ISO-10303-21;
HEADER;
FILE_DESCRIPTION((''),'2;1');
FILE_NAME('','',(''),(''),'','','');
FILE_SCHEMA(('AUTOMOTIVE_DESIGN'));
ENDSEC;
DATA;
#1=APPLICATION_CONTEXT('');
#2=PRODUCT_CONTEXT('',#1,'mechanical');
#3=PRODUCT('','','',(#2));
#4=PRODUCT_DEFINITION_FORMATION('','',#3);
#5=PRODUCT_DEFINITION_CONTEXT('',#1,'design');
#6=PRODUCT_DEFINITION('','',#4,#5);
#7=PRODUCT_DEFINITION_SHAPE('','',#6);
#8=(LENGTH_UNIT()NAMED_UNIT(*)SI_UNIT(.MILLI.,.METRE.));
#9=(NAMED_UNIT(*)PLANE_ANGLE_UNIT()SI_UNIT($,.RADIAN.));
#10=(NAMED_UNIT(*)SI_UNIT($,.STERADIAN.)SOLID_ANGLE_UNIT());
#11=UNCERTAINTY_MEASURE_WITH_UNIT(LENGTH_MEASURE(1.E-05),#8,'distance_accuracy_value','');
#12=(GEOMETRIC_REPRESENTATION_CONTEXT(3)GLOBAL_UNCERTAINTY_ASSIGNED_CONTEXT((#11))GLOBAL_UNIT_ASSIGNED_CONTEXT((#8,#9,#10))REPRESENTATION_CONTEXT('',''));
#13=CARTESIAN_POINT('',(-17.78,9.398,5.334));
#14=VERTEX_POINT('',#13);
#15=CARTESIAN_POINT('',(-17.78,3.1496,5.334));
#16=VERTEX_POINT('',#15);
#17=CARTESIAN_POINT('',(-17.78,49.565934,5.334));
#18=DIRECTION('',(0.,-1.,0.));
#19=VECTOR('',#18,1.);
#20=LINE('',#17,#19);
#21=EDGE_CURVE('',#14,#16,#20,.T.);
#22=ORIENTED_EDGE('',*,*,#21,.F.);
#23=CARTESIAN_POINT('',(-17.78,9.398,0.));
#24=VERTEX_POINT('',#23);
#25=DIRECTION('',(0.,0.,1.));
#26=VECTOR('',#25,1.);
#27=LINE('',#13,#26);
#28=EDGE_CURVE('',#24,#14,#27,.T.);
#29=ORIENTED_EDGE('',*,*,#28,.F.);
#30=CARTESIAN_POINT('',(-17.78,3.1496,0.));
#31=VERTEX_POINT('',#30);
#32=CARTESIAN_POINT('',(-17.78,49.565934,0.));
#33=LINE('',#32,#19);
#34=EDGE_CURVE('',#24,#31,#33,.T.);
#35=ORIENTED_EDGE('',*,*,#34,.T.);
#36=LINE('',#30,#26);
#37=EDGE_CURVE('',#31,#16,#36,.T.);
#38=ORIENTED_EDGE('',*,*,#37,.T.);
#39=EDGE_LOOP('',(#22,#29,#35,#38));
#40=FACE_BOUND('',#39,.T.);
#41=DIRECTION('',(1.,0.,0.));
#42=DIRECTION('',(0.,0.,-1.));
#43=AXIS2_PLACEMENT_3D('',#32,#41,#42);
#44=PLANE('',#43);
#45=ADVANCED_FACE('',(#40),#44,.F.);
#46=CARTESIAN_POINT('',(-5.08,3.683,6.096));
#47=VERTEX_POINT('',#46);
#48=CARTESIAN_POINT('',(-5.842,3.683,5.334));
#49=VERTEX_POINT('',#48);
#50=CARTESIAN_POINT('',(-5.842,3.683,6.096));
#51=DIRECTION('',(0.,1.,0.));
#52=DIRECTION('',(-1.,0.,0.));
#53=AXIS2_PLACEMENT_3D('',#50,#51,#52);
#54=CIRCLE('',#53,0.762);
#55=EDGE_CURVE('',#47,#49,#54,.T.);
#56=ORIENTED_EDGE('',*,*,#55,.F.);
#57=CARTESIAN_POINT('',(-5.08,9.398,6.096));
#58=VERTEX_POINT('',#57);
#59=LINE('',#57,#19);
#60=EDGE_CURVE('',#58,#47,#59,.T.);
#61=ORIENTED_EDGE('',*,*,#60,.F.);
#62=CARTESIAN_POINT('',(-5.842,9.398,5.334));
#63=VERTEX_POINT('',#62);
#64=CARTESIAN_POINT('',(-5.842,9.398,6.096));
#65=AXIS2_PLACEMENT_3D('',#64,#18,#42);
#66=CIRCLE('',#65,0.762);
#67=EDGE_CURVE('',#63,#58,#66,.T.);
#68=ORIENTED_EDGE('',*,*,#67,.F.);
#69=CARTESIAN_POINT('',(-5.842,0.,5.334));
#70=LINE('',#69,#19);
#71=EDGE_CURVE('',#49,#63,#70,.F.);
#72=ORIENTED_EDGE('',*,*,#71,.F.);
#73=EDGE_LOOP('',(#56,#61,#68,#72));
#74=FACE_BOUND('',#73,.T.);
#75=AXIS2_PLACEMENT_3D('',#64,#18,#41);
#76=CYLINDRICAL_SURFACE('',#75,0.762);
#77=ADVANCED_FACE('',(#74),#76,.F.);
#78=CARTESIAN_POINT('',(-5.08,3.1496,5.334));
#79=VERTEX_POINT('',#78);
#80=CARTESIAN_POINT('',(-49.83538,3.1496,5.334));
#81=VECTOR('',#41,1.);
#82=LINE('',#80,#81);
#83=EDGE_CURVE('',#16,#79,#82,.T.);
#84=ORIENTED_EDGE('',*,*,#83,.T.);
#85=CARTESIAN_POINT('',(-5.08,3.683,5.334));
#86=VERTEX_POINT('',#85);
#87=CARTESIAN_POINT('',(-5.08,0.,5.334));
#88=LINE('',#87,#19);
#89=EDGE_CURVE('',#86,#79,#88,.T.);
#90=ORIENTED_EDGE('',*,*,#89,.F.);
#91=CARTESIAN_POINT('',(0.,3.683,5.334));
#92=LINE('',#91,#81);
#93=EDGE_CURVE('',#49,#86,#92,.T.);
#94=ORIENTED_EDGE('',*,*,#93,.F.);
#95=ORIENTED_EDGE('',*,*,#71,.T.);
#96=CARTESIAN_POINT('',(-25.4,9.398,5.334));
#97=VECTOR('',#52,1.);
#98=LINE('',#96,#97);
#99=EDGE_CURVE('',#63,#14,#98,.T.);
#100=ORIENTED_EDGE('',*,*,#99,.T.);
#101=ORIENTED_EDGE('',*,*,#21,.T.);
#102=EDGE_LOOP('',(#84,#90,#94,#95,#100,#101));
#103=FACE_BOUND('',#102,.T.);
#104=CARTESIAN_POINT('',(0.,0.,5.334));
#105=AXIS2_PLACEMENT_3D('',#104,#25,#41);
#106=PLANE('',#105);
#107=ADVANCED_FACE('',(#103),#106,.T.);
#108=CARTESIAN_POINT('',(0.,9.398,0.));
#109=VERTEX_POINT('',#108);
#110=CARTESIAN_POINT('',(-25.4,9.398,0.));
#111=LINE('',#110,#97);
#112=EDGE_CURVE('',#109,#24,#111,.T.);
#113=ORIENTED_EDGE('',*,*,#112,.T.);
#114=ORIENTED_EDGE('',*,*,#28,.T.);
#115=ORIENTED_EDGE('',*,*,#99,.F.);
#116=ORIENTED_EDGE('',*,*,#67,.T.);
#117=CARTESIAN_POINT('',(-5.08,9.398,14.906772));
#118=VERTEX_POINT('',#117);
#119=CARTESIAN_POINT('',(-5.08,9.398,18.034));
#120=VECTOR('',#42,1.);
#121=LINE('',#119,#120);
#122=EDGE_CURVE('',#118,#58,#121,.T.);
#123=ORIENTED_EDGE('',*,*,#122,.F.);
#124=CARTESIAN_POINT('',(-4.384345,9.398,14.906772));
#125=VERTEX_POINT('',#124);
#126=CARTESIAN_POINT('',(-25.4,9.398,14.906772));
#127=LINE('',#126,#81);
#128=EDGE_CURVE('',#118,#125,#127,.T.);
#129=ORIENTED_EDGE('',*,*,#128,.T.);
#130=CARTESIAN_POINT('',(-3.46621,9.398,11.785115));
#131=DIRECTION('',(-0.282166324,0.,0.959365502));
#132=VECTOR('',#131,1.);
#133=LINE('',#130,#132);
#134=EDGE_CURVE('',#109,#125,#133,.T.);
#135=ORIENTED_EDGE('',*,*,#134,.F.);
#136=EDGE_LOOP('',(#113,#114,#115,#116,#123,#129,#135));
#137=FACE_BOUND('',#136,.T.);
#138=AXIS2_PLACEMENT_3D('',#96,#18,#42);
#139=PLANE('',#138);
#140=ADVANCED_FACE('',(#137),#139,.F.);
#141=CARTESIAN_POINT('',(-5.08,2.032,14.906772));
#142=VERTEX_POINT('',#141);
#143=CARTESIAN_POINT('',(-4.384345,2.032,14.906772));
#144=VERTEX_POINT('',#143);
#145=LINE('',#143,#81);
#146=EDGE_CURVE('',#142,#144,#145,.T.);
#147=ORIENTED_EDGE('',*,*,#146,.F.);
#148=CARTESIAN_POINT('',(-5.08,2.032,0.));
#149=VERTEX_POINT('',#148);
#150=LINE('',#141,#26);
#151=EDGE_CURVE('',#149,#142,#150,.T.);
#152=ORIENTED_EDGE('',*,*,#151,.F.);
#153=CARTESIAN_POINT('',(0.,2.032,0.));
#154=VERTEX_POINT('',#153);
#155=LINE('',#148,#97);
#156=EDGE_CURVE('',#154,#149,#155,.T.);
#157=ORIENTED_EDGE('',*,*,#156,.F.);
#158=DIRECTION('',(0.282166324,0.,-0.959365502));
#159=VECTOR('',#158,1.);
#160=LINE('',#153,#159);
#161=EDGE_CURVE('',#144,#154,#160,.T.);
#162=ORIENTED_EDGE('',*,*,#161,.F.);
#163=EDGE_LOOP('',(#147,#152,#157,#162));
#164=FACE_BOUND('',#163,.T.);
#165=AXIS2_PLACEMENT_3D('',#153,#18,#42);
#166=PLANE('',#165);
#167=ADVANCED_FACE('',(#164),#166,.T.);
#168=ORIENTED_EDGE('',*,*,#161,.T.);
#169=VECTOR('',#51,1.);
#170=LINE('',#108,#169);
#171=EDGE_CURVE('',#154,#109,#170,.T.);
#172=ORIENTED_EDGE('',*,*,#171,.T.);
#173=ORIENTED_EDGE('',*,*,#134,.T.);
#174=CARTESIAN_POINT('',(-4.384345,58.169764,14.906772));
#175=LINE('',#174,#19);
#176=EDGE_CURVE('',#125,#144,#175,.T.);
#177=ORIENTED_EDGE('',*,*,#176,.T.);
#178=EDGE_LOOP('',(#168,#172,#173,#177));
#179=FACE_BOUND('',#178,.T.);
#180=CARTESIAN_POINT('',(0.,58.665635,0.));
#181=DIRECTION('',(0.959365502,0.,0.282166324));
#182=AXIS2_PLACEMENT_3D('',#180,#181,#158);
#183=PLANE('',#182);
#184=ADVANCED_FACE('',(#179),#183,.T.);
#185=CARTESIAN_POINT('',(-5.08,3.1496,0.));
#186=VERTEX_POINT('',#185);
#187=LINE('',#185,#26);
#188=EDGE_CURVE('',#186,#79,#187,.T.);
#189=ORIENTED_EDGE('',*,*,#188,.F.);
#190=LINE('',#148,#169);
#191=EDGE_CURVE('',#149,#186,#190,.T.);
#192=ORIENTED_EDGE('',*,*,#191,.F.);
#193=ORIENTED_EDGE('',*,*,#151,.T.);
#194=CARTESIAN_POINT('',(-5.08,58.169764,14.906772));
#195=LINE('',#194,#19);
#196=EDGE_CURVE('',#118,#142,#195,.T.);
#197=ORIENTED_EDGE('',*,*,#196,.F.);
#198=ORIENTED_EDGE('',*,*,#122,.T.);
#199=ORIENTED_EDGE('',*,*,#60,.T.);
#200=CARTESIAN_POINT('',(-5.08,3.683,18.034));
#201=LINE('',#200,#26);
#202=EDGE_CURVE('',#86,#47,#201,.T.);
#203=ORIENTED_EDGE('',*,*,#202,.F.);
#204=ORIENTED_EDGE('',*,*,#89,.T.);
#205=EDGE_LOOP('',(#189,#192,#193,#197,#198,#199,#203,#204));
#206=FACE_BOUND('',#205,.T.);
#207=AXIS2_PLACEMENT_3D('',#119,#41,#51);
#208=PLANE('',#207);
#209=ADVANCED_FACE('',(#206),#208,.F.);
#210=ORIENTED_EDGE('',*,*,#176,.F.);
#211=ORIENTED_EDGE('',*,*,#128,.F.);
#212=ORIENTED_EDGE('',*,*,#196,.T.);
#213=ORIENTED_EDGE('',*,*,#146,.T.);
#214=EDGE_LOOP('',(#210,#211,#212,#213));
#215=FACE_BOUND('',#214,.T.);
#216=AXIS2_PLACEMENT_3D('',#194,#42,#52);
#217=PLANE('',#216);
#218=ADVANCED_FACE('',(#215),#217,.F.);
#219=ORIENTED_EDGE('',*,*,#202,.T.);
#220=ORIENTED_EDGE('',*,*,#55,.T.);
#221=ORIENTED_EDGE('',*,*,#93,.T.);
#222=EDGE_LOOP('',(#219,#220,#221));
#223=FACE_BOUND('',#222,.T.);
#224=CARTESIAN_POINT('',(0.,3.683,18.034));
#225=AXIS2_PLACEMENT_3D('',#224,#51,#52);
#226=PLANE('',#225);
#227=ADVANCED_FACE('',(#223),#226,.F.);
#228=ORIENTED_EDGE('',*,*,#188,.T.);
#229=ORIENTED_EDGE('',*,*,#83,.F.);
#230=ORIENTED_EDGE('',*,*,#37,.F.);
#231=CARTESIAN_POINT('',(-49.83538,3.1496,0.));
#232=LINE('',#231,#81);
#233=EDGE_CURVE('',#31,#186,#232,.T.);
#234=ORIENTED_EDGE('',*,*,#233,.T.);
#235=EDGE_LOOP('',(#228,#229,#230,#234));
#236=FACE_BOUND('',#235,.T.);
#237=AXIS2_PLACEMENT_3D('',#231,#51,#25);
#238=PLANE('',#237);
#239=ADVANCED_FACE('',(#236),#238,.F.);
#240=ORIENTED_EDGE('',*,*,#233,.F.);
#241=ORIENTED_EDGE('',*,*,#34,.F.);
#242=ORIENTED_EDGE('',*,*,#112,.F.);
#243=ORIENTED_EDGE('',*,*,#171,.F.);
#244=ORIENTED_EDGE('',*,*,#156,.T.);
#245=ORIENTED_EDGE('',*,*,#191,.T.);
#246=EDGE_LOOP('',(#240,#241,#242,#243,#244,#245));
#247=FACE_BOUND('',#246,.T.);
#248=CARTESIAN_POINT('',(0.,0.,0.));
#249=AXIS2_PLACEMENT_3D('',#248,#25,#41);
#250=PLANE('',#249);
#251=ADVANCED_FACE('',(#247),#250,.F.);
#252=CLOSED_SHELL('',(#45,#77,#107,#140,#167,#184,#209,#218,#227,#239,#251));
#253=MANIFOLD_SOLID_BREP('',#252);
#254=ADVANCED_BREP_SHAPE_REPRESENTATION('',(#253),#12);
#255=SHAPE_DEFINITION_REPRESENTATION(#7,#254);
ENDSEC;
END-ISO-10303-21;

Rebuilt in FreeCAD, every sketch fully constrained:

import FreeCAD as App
import Part
import Sketcher
from FreeCAD import Vector
Q = App.Units.Quantity


def edges_at(feature, points):
    """Names of the edges that pass closest to the given points."""
    edges = feature.Shape.Edges
    near = lambda p: min(range(len(edges)), key=lambda i: edges[i].distToShape(Part.Vertex(*p))[0])
    return sorted({f"Edge{near(p) + 1}" for p in points})


def add_polygon(sketch, points):
    """Adds a closed chain of lines whose ends are joined by coincident constraints."""
    first, n = sketch.GeometryCount, len(points)
    for a, b in zip(points, points[1:] + points[:1]):
        sketch.addGeometry(Part.LineSegment(App.Vector(*a, 0), App.Vector(*b, 0)), False)
    for i in range(n):
        sketch.addConstraint(Sketcher.Constraint("Coincident", first + i, 2, first + (i + 1) % n, 1))

doc = App.newDocument("Part")
body = doc.addObject("PartDesign::Body", "Body")

sketch1 = body.newObject("Sketcher::SketchObject", "Sketch")
sketch1.AttachmentSupport = (doc.getObject("XY_Plane"), [""])
sketch1.MapMode = "FlatFace"
add_polygon(sketch1, [(-5.1, 0), (-5.1, -1.5), (0, -1.5), (0, 9.4), (-25.4, 9.4), (-25.4, 0)])
sketch1.addConstraint([
    Sketcher.Constraint("Vertical", 0),
    Sketcher.Constraint("Horizontal", 1),
    Sketcher.Constraint("Vertical", 2),
    Sketcher.Constraint("Horizontal", 3),
    Sketcher.Constraint("Vertical", 4),
    Sketcher.Constraint("Horizontal", 5),
    Sketcher.Constraint("PointOnObject", 1, 2, -2),
    Sketcher.Constraint("PointOnObject", 4, 2, -1),
    Sketcher.Constraint("DistanceX", 3, 2, 3, 1, Q("1 in")),
    Sketcher.Constraint("DistanceX", 1, 1, 1, 2, Q("0.2 in")),
    Sketcher.Constraint("DistanceY", 0, 2, 0, 1, Q("0.06 in")),
    Sketcher.Constraint("DistanceY", 2, 1, 2, 2, Q("0.43 in")),
])
pad1 = body.newObject("PartDesign::Pad", "Pad")
pad1.Profile = sketch1
pad1.Length = Q("0.21 in")

sketch2 = body.newObject("Sketcher::SketchObject", "Sketch001")
sketch2.AttachmentSupport = (doc.getObject("XY_Plane"), [""])
sketch2.MapMode = "FlatFace"
sketch2.AttachmentOffset = App.Placement(Vector(0, 0, 0.21 * 25.4), App.Rotation())
add_polygon(sketch2, [(-5, 9), (-5, 4), (0, 4), (0, 9)])
sketch2.addConstraint([
    Sketcher.Constraint("Vertical", 0),
    Sketcher.Constraint("Horizontal", 1),
    Sketcher.Constraint("Vertical", 2),
    Sketcher.Constraint("Horizontal", 3),
    Sketcher.Constraint("PointOnObject", 1, 2, -2),
    Sketcher.Constraint("DistanceX", 1, 1, 1, 2, Q("0.2 in")),
    Sketcher.Constraint("DistanceY", 0, 2, 0, 1, Q("0.225 in")),
    Sketcher.Constraint("DistanceY", -1, 1, 2, 2, Q("0.37 in")),
])
pad2 = body.newObject("PartDesign::Pad", "Pad001")
pad2.Profile = sketch2
pad2.Length = Q("0.5 in")

sketch3 = body.newObject("Sketcher::SketchObject", "Sketch002")
sketch3.AttachmentSupport = (doc.getObject("XY_Plane"), [""])
sketch3.MapMode = "FlatFace"
sketch3.AttachmentOffset = App.Placement(Vector(0, 0, 0.21 * 25.4), App.Rotation())
add_polygon(sketch3, [(-26.3, 9.4), (-26.3, 6.9), (-25.4, 6.9), (-25.4, 9.4)])
sketch3.addConstraint([
    Sketcher.Constraint("Vertical", 0),
    Sketcher.Constraint("Horizontal", 1),
    Sketcher.Constraint("Vertical", 2),
    Sketcher.Constraint("Horizontal", 3),
    Sketcher.Constraint("DistanceY", 0, 2, 0, 1, Q("0.1 in")),
    Sketcher.Constraint("DistanceX", 1, 2, -1, 1, Q("1 in")),
    Sketcher.Constraint("DistanceX", 1, 1, 1, 2, Q("0.035 in")),
    Sketcher.Constraint("DistanceY", -1, 1, 0, 2, Q("0.27 in")),
])
pad3 = body.newObject("PartDesign::Pad", "Pad002")
pad3.Profile = sketch3
pad3.Length = Q("0.21 in")
pad3.Reversed = True

sketch4 = body.newObject("Sketcher::SketchObject", "Sketch003")
sketch4.AttachmentSupport = (doc.getObject("XZ_Plane"), [""])
sketch4.MapMode = "FlatFace"
sketch4.AttachmentOffset = App.Placement(Vector(0, 0, -0.145 * 25.4), App.Rotation())
add_polygon(sketch4, [(-5.1, 18), (-5.1, 16.4), (0, 16.4), (0, 18)])
sketch4.addConstraint([
    Sketcher.Constraint("Vertical", 0),
    Sketcher.Constraint("Horizontal", 1),
    Sketcher.Constraint("Vertical", 2),
    Sketcher.Constraint("Horizontal", 3),
    Sketcher.Constraint("PointOnObject", 1, 2, -2),
    Sketcher.Constraint("DistanceX", 1, 1, 1, 2, Q("0.2 in")),
    Sketcher.Constraint("DistanceY", 0, 2, 0, 1, Q("0.0625 in")),
    Sketcher.Constraint("DistanceY", -1, 1, 2, 2, Q("0.71 in")),
])
pad4 = body.newObject("PartDesign::Pad", "Pad003")
pad4.Profile = sketch4
pad4.Length = Q("0.145 in")
doc.recompute()

fillet = body.newObject("PartDesign::Fillet", "Fillet")
fillet.Base = (pad4, edges_at(pad4, [(-26.289, 8.128, 5.334)]))
fillet.Radius = Q("0.063 in")
doc.recompute()

fillet2 = body.newObject("PartDesign::Fillet", "Fillet001")
fillet2.Base = (fillet, edges_at(fillet, [(-5.08, 1.841, 16.447)]))
fillet2.Radius = Q("0.033 in")
doc.recompute()

fillet3 = body.newObject("PartDesign::Fillet", "Fillet002")
fillet3.Base = (fillet2, edges_at(fillet2, [
    (-5.08, 6.54, 5.334),
    (0, 4.699, 18.034),
    (-5.08, 4.699, 18.034),
    (0, 1.079, 5.334),
]))
fillet3.Radius = Q("0.03 in")

sketch5 = body.newObject("Sketcher::SketchObject", "Sketch004")
sketch5.AttachmentSupport = (doc.getObject("XZ_Plane"), [""])
sketch5.MapMode = "FlatFace"
sketch5.AttachmentOffset = App.Placement(Vector(0, 0, -0.37 * 25.4), App.Rotation())
add_polygon(sketch5, [(21, -71), (0, 0), (-5, 17), (-26, 88), (116, 130), (162, -29)])
sketch5.addConstraint([
    Sketcher.Constraint("Coincident", 0, 2, -1, 1),
    Sketcher.Constraint("Parallel", 0, 1),
    Sketcher.Constraint("Parallel", 1, 2),
    Sketcher.Constraint("Perpendicular", 2, 3),
    Sketcher.Constraint("Perpendicular", 3, 4),
    Sketcher.Constraint("Perpendicular", 4, 5),
    Sketcher.Constraint("Equal", 0, 2),
    Sketcher.Constraint("DistanceX", 1, 2, -1, 1, Q("0.2 in")),
    Sketcher.Constraint("DistanceY", -1, 1, 1, 2, Q("0.68 in")),
    Sketcher.Constraint("Distance", 0, 73.760071),
    Sketcher.Constraint("DistanceY", 4, 2, -1, 1, 29.137651),
])
pocket1 = body.newObject("PartDesign::Pocket", "Pocket")
pocket1.Profile = sketch5
pocket1.Type = "TwoLengths"
pocket1.Length = 1
pocket1.Length2 = 11.922

sketch6 = body.newObject("Sketcher::SketchObject", "Sketch005")
sketch6.AttachmentSupport = (doc.getObject("XZ_Plane"), [""])
sketch6.MapMode = "FlatFace"
sketch6.AttachmentOffset = App.Placement(Vector(0, 0, -0.37 * 25.4), App.Rotation())
add_polygon(sketch6, [(59, 15), (-68, 15), (-68, 141), (59, 141)])
sketch6.addConstraint([
    Sketcher.Constraint("Horizontal", 0),
    Sketcher.Constraint("Vertical", 1),
    Sketcher.Constraint("Horizontal", 2),
    Sketcher.Constraint("Vertical", 3),
    Sketcher.Constraint("DistanceX", 0, 2, 0, 1, 126.678731),
    Sketcher.Constraint("DistanceY", 1, 1, 1, 2, 125.983076),
    Sketcher.Constraint("DistanceY", -1, 1, 0, 2, 14.906772),
    Sketcher.Constraint("DistanceX", 0, 2, -1, 1, 68.071538),
])
pocket2 = body.newObject("PartDesign::Pocket", "Pocket001")
pocket2.Profile = sketch6
pocket2.Type = "ThroughAll"
pocket2.Midplane = True

sketch7 = body.newObject("Sketcher::SketchObject", "Sketch006")
sketch7.AttachmentSupport = (doc.getObject("XZ_Plane"), [""])
sketch7.MapMode = "FlatFace"
sketch7.AttachmentOffset = App.Placement(Vector(0, 0, -0.37 * 25.4), App.Rotation())
add_polygon(sketch7, [(-18, 62), (-18, -56), (-131, -56), (-131, 62)])
sketch7.addConstraint([
    Sketcher.Constraint("Vertical", 0),
    Sketcher.Constraint("Horizontal", 1),
    Sketcher.Constraint("Vertical", 2),
    Sketcher.Constraint("Horizontal", 3),
    Sketcher.Constraint("DistanceX", 0, 2, -1, 1, Q("0.7 in")),
    Sketcher.Constraint("DistanceX", 1, 2, 1, 1, 112.808641),
    Sketcher.Constraint("DistanceY", 0, 2, 0, 1, 118.142641),
    Sketcher.Constraint("DistanceY", 0, 2, -1, 1, 56.404321),
])
pocket3 = body.newObject("PartDesign::Pocket", "Pocket002")
pocket3.Profile = sketch7
pocket3.Type = "ThroughAll"
pocket3.Midplane = True

sketch8 = body.newObject("Sketcher::SketchObject", "Sketch007")
sketch8.AttachmentSupport = (doc.getObject("YZ_Plane"), [""])
sketch8.MapMode = "FlatFace"
sketch8.AttachmentOffset = App.Placement(Vector(0, 0, -0.7 * 25.4), App.Rotation())
add_polygon(sketch8, [(3, 48), (3, -42), (-82, -42), (-82, 48)])
sketch8.addConstraint([
    Sketcher.Constraint("Vertical", 0),
    Sketcher.Constraint("Horizontal", 1),
    Sketcher.Constraint("Vertical", 2),
    Sketcher.Constraint("Horizontal", 3),
    Sketcher.Constraint("DistanceX", -1, 1, 0, 2, Q("0.124 in")),
    Sketcher.Constraint("DistanceX", 1, 2, 1, 1, 84.653457),
    Sketcher.Constraint("DistanceY", 0, 2, 0, 1, 89.987457),
    Sketcher.Constraint("DistanceY", 0, 2, -1, 1, 42.326728),
])
pocket4 = body.newObject("PartDesign::Pocket", "Pocket003")
pocket4.Profile = sketch8
pocket4.Type = "ThroughAll"
pocket4.Midplane = True

sketch9 = body.newObject("Sketcher::SketchObject", "Sketch008")
sketch9.AttachmentSupport = (doc.getObject("XZ_Plane"), [""])
sketch9.MapMode = "FlatFace"
sketch9.AttachmentOffset = App.Placement(Vector(0, 0, -0.37 * 25.4), App.Rotation())
add_polygon(sketch9, [(-5.1, 0), (-5.1, 14.9), (-4.4, 14.9), (0, 0)])
sketch9.addConstraint([
    Sketcher.Constraint("Vertical", 0),
    Sketcher.Constraint("Horizontal", 1),
    Sketcher.Constraint("Horizontal", 3),
    Sketcher.Constraint("Coincident", 2, 2, -1, 1),
    Sketcher.Constraint("DistanceX", 3, 2, 3, 1, Q("0.2 in")),
    Sketcher.Constraint("DistanceY", 0, 1, 0, 2, 14.906772),
    Sketcher.Constraint("DistanceX", 1, 1, 1, 2, 0.695655),
])
pad5 = body.newObject("PartDesign::Pad", "Pad004")
pad5.Profile = sketch9
pad5.Length = Q("0.29 in")

doc.recompute()
